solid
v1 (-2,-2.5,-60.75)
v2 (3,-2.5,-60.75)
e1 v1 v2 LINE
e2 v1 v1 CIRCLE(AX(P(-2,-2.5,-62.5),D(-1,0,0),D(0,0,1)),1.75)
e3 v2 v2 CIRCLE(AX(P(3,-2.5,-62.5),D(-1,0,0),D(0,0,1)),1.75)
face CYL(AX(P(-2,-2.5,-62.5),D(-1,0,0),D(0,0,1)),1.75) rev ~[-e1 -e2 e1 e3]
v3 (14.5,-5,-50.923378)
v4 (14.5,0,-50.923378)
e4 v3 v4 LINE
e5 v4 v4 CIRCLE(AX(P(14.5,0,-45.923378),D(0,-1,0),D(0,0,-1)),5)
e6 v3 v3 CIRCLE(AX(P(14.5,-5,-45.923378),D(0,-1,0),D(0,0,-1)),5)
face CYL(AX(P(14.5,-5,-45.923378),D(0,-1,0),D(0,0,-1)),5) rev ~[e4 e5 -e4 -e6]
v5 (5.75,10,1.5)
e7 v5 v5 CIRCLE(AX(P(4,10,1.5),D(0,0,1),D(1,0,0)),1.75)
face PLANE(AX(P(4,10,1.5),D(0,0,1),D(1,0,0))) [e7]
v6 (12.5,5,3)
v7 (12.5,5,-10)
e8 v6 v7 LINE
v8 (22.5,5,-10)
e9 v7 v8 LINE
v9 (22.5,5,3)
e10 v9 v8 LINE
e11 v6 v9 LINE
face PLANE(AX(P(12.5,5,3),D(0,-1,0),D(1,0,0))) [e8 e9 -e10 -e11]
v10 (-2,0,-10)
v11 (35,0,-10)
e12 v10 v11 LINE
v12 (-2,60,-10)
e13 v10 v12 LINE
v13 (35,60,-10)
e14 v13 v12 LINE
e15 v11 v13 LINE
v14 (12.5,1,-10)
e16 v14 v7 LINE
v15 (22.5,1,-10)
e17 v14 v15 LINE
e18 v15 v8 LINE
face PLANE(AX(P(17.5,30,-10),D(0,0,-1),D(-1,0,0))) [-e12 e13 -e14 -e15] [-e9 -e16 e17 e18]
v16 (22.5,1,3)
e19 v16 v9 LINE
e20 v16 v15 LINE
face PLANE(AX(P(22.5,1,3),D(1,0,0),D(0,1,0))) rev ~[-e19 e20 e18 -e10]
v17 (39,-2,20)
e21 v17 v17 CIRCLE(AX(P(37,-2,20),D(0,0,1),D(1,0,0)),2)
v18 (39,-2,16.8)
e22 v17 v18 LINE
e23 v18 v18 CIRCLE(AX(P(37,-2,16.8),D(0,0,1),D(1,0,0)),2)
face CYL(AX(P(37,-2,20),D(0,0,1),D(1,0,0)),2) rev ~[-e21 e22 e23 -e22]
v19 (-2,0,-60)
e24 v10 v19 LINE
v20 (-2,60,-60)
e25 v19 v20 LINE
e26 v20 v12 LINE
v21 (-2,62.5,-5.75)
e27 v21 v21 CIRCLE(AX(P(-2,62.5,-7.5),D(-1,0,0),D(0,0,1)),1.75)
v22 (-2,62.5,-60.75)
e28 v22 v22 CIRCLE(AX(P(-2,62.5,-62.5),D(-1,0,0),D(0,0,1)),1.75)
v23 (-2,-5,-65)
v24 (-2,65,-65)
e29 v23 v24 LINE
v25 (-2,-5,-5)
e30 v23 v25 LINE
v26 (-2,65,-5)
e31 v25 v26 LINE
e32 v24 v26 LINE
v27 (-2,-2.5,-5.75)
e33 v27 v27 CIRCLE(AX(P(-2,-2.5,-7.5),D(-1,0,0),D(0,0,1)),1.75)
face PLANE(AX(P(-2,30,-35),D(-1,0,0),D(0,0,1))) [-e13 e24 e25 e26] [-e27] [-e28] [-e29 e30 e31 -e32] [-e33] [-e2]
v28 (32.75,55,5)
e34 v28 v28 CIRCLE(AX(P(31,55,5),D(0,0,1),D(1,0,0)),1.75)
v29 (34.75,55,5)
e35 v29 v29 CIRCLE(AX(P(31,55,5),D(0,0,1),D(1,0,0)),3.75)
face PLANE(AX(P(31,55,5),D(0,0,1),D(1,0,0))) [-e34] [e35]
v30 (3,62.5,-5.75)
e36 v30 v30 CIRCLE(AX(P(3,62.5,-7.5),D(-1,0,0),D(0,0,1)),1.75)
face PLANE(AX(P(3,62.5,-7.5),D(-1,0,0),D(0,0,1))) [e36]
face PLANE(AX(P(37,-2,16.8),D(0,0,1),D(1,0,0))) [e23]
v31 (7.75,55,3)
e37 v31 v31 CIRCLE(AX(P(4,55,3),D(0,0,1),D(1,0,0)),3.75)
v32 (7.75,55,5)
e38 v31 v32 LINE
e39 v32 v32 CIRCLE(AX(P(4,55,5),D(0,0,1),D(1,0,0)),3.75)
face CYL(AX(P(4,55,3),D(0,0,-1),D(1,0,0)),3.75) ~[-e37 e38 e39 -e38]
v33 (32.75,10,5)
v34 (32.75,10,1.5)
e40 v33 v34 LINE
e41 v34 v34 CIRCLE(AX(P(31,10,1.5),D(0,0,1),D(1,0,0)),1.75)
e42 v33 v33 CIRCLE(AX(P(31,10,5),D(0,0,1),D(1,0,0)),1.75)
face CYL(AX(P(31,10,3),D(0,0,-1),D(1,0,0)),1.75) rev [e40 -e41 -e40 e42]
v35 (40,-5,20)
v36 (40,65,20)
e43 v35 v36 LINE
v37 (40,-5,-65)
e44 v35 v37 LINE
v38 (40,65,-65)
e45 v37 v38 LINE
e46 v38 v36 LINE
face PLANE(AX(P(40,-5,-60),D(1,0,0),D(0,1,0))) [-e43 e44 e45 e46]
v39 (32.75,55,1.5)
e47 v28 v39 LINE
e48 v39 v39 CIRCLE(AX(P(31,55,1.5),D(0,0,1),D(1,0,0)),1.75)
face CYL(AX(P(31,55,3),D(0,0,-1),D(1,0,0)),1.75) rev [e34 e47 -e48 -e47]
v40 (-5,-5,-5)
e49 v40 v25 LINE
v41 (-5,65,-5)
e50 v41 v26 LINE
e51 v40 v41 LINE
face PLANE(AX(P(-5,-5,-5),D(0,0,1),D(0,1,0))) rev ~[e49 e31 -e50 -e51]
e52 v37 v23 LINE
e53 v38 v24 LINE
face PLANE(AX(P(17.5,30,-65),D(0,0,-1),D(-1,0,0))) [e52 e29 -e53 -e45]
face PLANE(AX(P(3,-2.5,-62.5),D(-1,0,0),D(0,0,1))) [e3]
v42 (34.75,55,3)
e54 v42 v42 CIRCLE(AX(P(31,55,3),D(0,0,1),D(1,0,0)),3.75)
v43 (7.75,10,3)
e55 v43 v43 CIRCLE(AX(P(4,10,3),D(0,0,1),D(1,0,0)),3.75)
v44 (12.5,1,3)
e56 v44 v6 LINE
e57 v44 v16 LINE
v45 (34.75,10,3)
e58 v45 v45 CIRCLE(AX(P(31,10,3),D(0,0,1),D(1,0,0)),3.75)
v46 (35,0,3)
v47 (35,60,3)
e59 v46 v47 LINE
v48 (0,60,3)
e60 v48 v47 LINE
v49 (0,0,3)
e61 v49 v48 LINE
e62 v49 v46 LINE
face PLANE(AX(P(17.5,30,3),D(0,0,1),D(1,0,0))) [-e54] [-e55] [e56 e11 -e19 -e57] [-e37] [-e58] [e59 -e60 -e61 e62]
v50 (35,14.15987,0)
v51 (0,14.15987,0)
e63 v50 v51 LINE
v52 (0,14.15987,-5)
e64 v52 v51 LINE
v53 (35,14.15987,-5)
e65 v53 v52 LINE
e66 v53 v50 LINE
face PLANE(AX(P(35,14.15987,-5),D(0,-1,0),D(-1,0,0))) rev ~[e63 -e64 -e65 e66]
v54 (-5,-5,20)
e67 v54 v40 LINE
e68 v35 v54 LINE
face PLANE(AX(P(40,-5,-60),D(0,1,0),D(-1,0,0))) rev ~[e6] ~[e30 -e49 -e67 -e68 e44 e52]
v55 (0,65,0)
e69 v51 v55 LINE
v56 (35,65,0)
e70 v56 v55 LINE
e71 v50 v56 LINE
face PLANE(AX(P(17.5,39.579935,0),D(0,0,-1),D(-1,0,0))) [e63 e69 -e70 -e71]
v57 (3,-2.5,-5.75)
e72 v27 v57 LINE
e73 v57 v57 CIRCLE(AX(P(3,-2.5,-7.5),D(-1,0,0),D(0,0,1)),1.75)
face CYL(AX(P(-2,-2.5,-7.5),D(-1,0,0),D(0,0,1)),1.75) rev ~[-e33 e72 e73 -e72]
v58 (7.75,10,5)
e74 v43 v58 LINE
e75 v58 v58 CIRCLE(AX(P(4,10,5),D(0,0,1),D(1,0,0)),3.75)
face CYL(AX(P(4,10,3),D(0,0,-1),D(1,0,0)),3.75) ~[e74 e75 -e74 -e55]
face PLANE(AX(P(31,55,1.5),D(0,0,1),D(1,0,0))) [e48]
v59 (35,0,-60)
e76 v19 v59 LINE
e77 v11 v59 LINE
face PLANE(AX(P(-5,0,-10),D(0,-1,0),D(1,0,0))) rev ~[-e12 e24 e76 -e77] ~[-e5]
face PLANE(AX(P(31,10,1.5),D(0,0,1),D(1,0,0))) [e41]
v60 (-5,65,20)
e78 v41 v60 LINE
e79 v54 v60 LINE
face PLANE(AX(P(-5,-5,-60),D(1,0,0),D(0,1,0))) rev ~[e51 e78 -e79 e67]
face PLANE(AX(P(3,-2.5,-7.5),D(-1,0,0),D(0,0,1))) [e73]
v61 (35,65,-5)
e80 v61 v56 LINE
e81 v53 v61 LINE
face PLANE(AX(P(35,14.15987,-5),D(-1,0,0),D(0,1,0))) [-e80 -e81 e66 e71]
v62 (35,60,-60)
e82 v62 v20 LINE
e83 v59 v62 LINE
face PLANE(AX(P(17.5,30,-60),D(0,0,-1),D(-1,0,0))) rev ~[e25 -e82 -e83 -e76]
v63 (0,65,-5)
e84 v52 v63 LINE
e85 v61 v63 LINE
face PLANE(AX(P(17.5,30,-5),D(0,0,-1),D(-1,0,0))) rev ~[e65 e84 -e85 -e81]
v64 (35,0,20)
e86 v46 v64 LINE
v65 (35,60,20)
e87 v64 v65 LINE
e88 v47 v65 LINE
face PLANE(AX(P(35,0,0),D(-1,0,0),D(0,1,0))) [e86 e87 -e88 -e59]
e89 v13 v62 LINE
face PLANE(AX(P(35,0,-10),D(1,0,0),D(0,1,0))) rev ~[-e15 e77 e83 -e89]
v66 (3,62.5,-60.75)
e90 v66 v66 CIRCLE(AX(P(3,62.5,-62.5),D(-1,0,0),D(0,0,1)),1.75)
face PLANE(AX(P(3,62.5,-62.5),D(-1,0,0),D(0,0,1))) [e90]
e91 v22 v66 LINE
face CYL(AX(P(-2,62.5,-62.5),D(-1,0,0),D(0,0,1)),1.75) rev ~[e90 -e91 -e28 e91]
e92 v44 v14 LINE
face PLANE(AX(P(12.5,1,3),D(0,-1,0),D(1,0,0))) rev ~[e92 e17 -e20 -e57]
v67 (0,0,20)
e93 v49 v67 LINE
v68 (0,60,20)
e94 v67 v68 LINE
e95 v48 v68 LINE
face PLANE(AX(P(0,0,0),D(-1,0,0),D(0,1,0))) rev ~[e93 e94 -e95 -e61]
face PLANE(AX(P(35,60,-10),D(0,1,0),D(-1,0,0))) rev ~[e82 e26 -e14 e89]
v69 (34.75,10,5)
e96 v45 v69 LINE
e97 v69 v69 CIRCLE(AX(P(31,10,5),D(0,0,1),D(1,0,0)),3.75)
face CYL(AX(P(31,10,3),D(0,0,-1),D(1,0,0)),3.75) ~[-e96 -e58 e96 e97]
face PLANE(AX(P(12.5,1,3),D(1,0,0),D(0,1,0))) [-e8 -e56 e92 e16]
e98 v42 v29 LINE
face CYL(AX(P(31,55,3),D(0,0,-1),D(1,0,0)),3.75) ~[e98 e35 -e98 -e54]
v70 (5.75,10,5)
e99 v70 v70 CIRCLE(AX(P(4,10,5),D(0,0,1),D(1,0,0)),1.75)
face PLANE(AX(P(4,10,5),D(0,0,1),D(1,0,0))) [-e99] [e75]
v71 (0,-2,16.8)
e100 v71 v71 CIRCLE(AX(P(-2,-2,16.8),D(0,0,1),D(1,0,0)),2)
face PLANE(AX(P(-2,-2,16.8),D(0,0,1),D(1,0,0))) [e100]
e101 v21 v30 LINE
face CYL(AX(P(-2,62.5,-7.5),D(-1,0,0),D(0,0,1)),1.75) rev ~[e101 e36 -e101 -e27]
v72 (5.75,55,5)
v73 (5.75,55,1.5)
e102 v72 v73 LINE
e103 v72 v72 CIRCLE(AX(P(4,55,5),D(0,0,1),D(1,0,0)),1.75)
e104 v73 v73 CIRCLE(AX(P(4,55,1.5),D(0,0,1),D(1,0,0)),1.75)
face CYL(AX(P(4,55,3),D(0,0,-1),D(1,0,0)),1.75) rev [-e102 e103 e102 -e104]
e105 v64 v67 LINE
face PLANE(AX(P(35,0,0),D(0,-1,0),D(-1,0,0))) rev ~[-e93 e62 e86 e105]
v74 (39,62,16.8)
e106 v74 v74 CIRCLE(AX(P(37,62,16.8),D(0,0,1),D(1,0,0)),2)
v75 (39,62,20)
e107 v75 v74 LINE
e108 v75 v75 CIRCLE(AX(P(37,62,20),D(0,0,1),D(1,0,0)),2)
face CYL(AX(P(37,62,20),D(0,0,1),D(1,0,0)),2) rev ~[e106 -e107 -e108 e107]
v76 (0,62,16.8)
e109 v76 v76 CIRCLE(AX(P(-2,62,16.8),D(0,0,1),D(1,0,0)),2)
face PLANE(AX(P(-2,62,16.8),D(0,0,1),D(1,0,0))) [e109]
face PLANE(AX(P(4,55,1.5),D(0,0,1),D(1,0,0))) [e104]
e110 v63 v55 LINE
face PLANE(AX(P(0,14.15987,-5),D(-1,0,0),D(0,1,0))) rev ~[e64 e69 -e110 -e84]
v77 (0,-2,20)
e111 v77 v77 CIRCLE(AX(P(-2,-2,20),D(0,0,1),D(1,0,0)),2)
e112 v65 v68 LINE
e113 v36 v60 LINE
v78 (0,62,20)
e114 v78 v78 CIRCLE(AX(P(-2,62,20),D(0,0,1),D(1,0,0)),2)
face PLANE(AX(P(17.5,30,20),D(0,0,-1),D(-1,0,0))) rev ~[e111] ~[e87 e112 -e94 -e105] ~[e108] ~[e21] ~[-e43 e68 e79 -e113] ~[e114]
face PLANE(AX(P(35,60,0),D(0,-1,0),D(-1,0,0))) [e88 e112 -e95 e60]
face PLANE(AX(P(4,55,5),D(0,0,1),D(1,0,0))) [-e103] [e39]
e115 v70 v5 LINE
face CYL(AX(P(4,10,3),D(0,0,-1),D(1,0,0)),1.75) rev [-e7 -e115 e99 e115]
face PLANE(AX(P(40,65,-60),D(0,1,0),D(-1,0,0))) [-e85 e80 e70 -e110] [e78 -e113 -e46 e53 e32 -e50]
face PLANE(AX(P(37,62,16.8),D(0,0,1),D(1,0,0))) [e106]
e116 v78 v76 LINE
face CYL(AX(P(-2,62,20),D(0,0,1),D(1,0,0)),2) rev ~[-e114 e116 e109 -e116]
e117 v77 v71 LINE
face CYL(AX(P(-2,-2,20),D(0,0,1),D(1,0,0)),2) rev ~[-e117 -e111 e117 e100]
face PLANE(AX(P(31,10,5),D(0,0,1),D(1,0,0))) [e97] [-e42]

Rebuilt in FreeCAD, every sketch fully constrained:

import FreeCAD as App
import Part
import Sketcher

V = App.Vector

doc = App.newDocument("Part")
params = doc.addObject("Spreadsheet::Sheet", "Params")
for row, (alias, value) in enumerate([
    ("sketch1_width", "35 mm"),
    ("sketch1_height", "60 mm"),
    ("pad1_length", "3 mm"),
    ("sketch2_width", "45 mm"),
    ("sketch2_width2", "35 mm"),
    ("sketch2_height", "70 mm"),
    ("sketch2_height2", "60 mm"),
    ("pad2_length", "20 mm"),
    ("sketch3_diameter", "7.5 mm"),
    ("sketch3_diameter2", "3.5 mm"),
    ("pad3_length", "2 mm"),
    ("sketch4_diameter", "3.5 mm"),
    ("pocket1_length", "1.5 mm"),
    ("sketch5_width", "45 mm"),
    ("sketch5_height", "70 mm"),
    ("pad4_length", "5 mm"),
    ("sketch6_width", "35 mm"),
    ("pocket2_length", "5 mm"),
    ("sketch7_width", "45 mm"),
    ("sketch7_height", "70 mm"),
    ("pad5_length", "5 mm"),
    ("sketch8_width", "40 mm"),
    ("sketch8_width2", "45 mm"),
    ("sketch8_height", "5 mm"),
    ("sketch8_height2", "60 mm"),
    ("pad6_length", "50 mm"),
    ("sketch9_width", "45 mm"),
    ("sketch9_height", "70 mm"),
    ("pad7_length", "5 mm"),
    ("sketch10_diameter", "4 mm"),
    ("pocket3_length", "3.2 mm"),
    ("sketch11_width", "10 mm"),
    ("sketch11_height", "4 mm"),
    ("sketch12_width", "70 mm"),
    ("sketch12_height", "60 mm"),
    ("pocket5_length", "3 mm"),
    ("sketch13_diameter", "3.5 mm"),
    ("pocket6_length", "5 mm"),
    ("sketch14_diameter", "10 mm"),
    ("pocket7_length", "5 mm"),
], start=1):
    params.set(f"A{row}", alias)
    params.set(f"B{row}", "=" + value)
    params.setAlias(f"B{row}", alias)

body = doc.addObject("PartDesign::Body", "Body")

# Sketch on XY plane
sketch1 = body.newObject("Sketcher::SketchObject", "Sketch")
sketch1.AttachmentSupport = (doc.getObject("XY_Plane"), [""])
sketch1.MapMode = "FlatFace"
sketch1.addGeometry(Part.LineSegment(V(0, 60, 0), V(0, 0, 0)), False)
sketch1.addGeometry(Part.LineSegment(V(0, 0, 0), V(35, 0, 0)), False)
sketch1.addGeometry(Part.LineSegment(V(35, 0, 0), V(35, 60, 0)), False)
sketch1.addGeometry(Part.LineSegment(V(35, 60, 0), V(0, 60, 0)), False)
sketch1.addConstraint(Sketcher.Constraint("Coincident", 0, 2, 1, 1))
sketch1.addConstraint(Sketcher.Constraint("Coincident", 1, 2, 2, 1))
sketch1.addConstraint(Sketcher.Constraint("Coincident", 2, 2, 3, 1))
sketch1.addConstraint(Sketcher.Constraint("Coincident", 3, 2, 0, 1))
sketch1.addConstraint(Sketcher.Constraint("Vertical", 0))
sketch1.addConstraint(Sketcher.Constraint("Horizontal", 1))
sketch1.addConstraint(Sketcher.Constraint("Vertical", 2))
sketch1.addConstraint(Sketcher.Constraint("Horizontal", 3))
sketch1.addConstraint(Sketcher.Constraint("Coincident", 0, 2, -1, 1))
sketch1.addConstraint(Sketcher.Constraint("DistanceX", 1, 1, 1, 2, 35.0))
sketch1.addConstraint(Sketcher.Constraint("DistanceY", 0, 2, 0, 1, 60.0))
sketch1.setExpression("Constraints[9]", "Params.sketch1_width")
sketch1.setExpression("Constraints[10]", "Params.sketch1_height")
pad1 = body.newObject("PartDesign::Pad", "Pad")
pad1.Profile = sketch1
pad1.setExpression("Length", "Params.pad1_length")

# Sketch on XY plane
sketch2 = body.newObject("Sketcher::SketchObject", "Sketch001")
sketch2.AttachmentSupport = (doc.getObject("XY_Plane"), [""])
sketch2.MapMode = "FlatFace"
sketch2.addGeometry(Part.LineSegment(V(40, 65, 0), V(40, -5, 0)), False)
sketch2.addGeometry(Part.LineSegment(V(40, -5, 0), V(-5, -5, 0)), False)
sketch2.addGeometry(Part.LineSegment(V(-5, -5, 0), V(-5, 65, 0)), False)
sketch2.addGeometry(Part.LineSegment(V(-5, 65, 0), V(40, 65, 0)), False)
sketch2.addGeometry(Part.LineSegment(V(0, 0, 0), V(35, 0, 0)), False)
sketch2.addGeometry(Part.LineSegment(V(35, 0, 0), V(35, 60, 0)), False)
sketch2.addGeometry(Part.LineSegment(V(35, 60, 0), V(0, 60, 0)), False)
sketch2.addGeometry(Part.LineSegment(V(0, 60, 0), V(0, 0, 0)), False)
sketch2.addConstraint(Sketcher.Constraint("Coincident", 0, 2, 1, 1))
sketch2.addConstraint(Sketcher.Constraint("Coincident", 1, 2, 2, 1))
sketch2.addConstraint(Sketcher.Constraint("Coincident", 2, 2, 3, 1))
sketch2.addConstraint(Sketcher.Constraint("Coincident", 3, 2, 0, 1))
sketch2.addConstraint(Sketcher.Constraint("Coincident", 4, 2, 5, 1))
sketch2.addConstraint(Sketcher.Constraint("Coincident", 5, 2, 6, 1))
sketch2.addConstraint(Sketcher.Constraint("Coincident", 6, 2, 7, 1))
sketch2.addConstraint(Sketcher.Constraint("Coincident", 7, 2, 4, 1))
sketch2.addConstraint(Sketcher.Constraint("Vertical", 0))
sketch2.addConstraint(Sketcher.Constraint("Horizontal", 1))
sketch2.addConstraint(Sketcher.Constraint("Vertical", 2))
sketch2.addConstraint(Sketcher.Constraint("Horizontal", 3))
sketch2.addConstraint(Sketcher.Constraint("Horizontal", 4))
sketch2.addConstraint(Sketcher.Constraint("Vertical", 5))
sketch2.addConstraint(Sketcher.Constraint("Horizontal", 6))
sketch2.addConstraint(Sketcher.Constraint("Vertical", 7))
sketch2.addConstraint(Sketcher.Constraint("Coincident", 7, 2, -1, 1))
sketch2.addConstraint(Sketcher.Constraint("DistanceX", 1, 2, 1, 1, 45.0))
sketch2.addConstraint(Sketcher.Constraint("DistanceX", 4, 1, 4, 2, 35.0))
sketch2.addConstraint(Sketcher.Constraint("DistanceY", 0, 2, 0, 1, 70.0))
sketch2.addConstraint(Sketcher.Constraint("DistanceY", 5, 1, 5, 2, 60.0))
sketch2.addConstraint(Sketcher.Constraint("DistanceX", -1, 1, 0, 2, 40.0))
sketch2.addConstraint(Sketcher.Constraint("DistanceY", 0, 2, -1, 1, 5.0))
sketch2.setExpression("Constraints[17]", "Params.sketch2_width")
sketch2.setExpression("Constraints[18]", "Params.sketch2_width2")
sketch2.setExpression("Constraints[19]", "Params.sketch2_height")
sketch2.setExpression("Constraints[20]", "Params.sketch2_height2")
pad2 = body.newObject("PartDesign::Pad", "Pad001")
pad2.Profile = sketch2
pad2.setExpression("Length", "Params.pad2_length")

# Sketch on XY plane
sketch3 = body.newObject("Sketcher::SketchObject", "Sketch002")
sketch3.AttachmentSupport = (doc.getObject("XY_Plane"), [""])
sketch3.MapMode = "FlatFace"
sketch3.AttachmentOffset = App.Placement(V(0, 0, 3), App.Rotation())
sketch3.addGeometry(Part.Circle(V(4, 55, 0), V(0, 0, 1), 3.75), False)
sketch3.addGeometry(Part.Circle(V(4, 55, 0), V(0, 0, 1), 1.75), False)
sketch3.addGeometry(Part.Circle(V(31, 55, 0), V(0, 0, 1), 3.75), False)
sketch3.addGeometry(Part.Circle(V(31, 55, 0), V(0, 0, 1), 1.75), False)
sketch3.addGeometry(Part.Circle(V(31, 10, 0), V(0, 0, 1), 3.75), False)
sketch3.addGeometry(Part.Circle(V(31, 10, 0), V(0, 0, 1), 1.75), False)
sketch3.addGeometry(Part.Circle(V(4, 10, 0), V(0, 0, 1), 3.75), False)
sketch3.addGeometry(Part.Circle(V(4, 10, 0), V(0, 0, 1), 1.75), False)
sketch3.addConstraint(Sketcher.Constraint("Coincident", 1, 3, 0, 3))
sketch3.addConstraint(Sketcher.Constraint("Coincident", 3, 3, 2, 3))
sketch3.addConstraint(Sketcher.Constraint("Coincident", 5, 3, 4, 3))
sketch3.addConstraint(Sketcher.Constraint("Coincident", 7, 3, 6, 3))
sketch3.addConstraint(Sketcher.Constraint("Equal", 0, 2))
sketch3.addConstraint(Sketcher.Constraint("Equal", 1, 3))
sketch3.addConstraint(Sketcher.Constraint("Equal", 2, 4))
sketch3.addConstraint(Sketcher.Constraint("Equal", 3, 5))
sketch3.addConstraint(Sketcher.Constraint("Equal", 4, 6))
sketch3.addConstraint(Sketcher.Constraint("Equal", 5, 7))
sketch3.addConstraint(Sketcher.Constraint("Horizontal", 1, 3, 2, 3))
sketch3.addConstraint(Sketcher.Constraint("Horizontal", 5, 3, 6, 3))
sketch3.addConstraint(Sketcher.Constraint("Vertical", 3, 3, 4, 3))
sketch3.addConstraint(Sketcher.Constraint("Vertical", 1, 3, 6, 3))
sketch3.addConstraint(Sketcher.Constraint("Diameter", 0, 7.5))
sketch3.addConstraint(Sketcher.Constraint("Diameter", 1, 3.5))
sketch3.addConstraint(Sketcher.Constraint("DistanceX", -1, 1, 0, 3, 4.0))
sketch3.addConstraint(Sketcher.Constraint("DistanceY", -1, 1, 0, 3, 55.0))
sketch3.addConstraint(Sketcher.Constraint("DistanceX", -1, 1, 2, 3, 31.0))
sketch3.addConstraint(Sketcher.Constraint("DistanceY", -1, 1, 4, 3, 10.0))
sketch3.setExpression("Constraints[14]", "Params.sketch3_diameter")
sketch3.setExpression("Constraints[15]", "Params.sketch3_diameter2")
pad3 = body.newObject("PartDesign::Pad", "Pad002")
pad3.Profile = sketch3
pad3.setExpression("Length", "Params.pad3_length")

# Sketch on XY plane
sketch4 = body.newObject("Sketcher::SketchObject", "Sketch003")
sketch4.AttachmentSupport = (doc.getObject("XY_Plane"), [""])
sketch4.MapMode = "FlatFace"
sketch4.AttachmentOffset = App.Placement(V(0, 0, 1.5), App.Rotation())
sketch4.addGeometry(Part.Circle(V(4, 55, 0), V(0, 0, 1), 1.75), False)
sketch4.addGeometry(Part.Circle(V(31, 55, 0), V(0, 0, 1), 1.75), False)
sketch4.addGeometry(Part.Circle(V(31, 10, 0), V(0, 0, 1), 1.75), False)
sketch4.addGeometry(Part.Circle(V(4, 10, 0), V(0, 0, 1), 1.75), False)
sketch4.addConstraint(Sketcher.Constraint("Equal", 0, 1))
sketch4.addConstraint(Sketcher.Constraint("Equal", 1, 2))
sketch4.addConstraint(Sketcher.Constraint("Equal", 2, 3))
sketch4.addConstraint(Sketcher.Constraint("Horizontal", 0, 3, 1, 3))
sketch4.addConstraint(Sketcher.Constraint("Horizontal", 2, 3, 3, 3))
sketch4.addConstraint(Sketcher.Constraint("Vertical", 1, 3, 2, 3))
sketch4.addConstraint(Sketcher.Constraint("Vertical", 0, 3, 3, 3))
sketch4.addConstraint(Sketcher.Constraint("Diameter", 0, 3.5))
sketch4.addConstraint(Sketcher.Constraint("DistanceX", -1, 1, 0, 3, 4.0))
sketch4.addConstraint(Sketcher.Constraint("DistanceY", -1, 1, 0, 3, 55.0))
sketch4.addConstraint(Sketcher.Constraint("DistanceX", -1, 1, 1, 3, 31.0))
sketch4.addConstraint(Sketcher.Constraint("DistanceY", -1, 1, 2, 3, 10.0))
sketch4.setExpression("Constraints[7]", "Params.sketch4_diameter")
pocket1 = body.newObject("PartDesign::Pocket", "Pocket")
pocket1.Profile = sketch4
pocket1.setExpression("Length", "Params.pocket1_length")
pocket1.Reversed = True

# Sketch on XY plane
sketch5 = body.newObject("Sketcher::SketchObject", "Sketch004")
sketch5.AttachmentSupport = (doc.getObject("XY_Plane"), [""])
sketch5.MapMode = "FlatFace"
sketch5.addGeometry(Part.LineSegment(V(40, 65, 0), V(40, -5, 0)), False)
sketch5.addGeometry(Part.LineSegment(V(40, -5, 0), V(-5, -5, 0)), False)
sketch5.addGeometry(Part.LineSegment(V(-5, -5, 0), V(-5, 65, 0)), False)
sketch5.addGeometry(Part.LineSegment(V(-5, 65, 0), V(40, 65, 0)), False)
sketch5.addConstraint(Sketcher.Constraint("Coincident", 0, 2, 1, 1))
sketch5.addConstraint(Sketcher.Constraint("Coincident", 1, 2, 2, 1))
sketch5.addConstraint(Sketcher.Constraint("Coincident", 2, 2, 3, 1))
sketch5.addConstraint(Sketcher.Constraint("Coincident", 3, 2, 0, 1))
sketch5.addConstraint(Sketcher.Constraint("Vertical", 0))
sketch5.addConstraint(Sketcher.Constraint("Horizontal", 1))
sketch5.addConstraint(Sketcher.Constraint("Vertical", 2))
sketch5.addConstraint(Sketcher.Constraint("Horizontal", 3))
sketch5.addConstraint(Sketcher.Constraint("DistanceX", 1, 2, 1, 1, 45.0))
sketch5.addConstraint(Sketcher.Constraint("DistanceY", 0, 2, 0, 1, 70.0))
sketch5.addConstraint(Sketcher.Constraint("DistanceX", -1, 1, 0, 2, 40.0))
sketch5.addConstraint(Sketcher.Constraint("DistanceY", 0, 2, -1, 1, 5.0))
sketch5.setExpression("Constraints[8]", "Params.sketch5_width")
sketch5.setExpression("Constraints[9]", "Params.sketch5_height")
pad4 = body.newObject("PartDesign::Pad", "Pad003")
pad4.Profile = sketch5
pad4.setExpression("Length", "Params.pad4_length")
pad4.Reversed = True

# Sketch on XY plane
sketch6 = body.newObject("Sketcher::SketchObject", "Sketch005")
sketch6.AttachmentSupport = (doc.getObject("XY_Plane"), [""])
sketch6.MapMode = "FlatFace"
sketch6.AttachmentOffset = App.Placement(V(0, 0, -5), App.Rotation())
sketch6.addGeometry(Part.LineSegment(V(35, 65, 0), V(35, 14.15987, 0)), False)
sketch6.addGeometry(Part.LineSegment(V(35, 14.15987, 0), V(0, 14.15987, 0)), False)
sketch6.addGeometry(Part.LineSegment(V(0, 14.15987, 0), V(0, 65, 0)), False)
sketch6.addGeometry(Part.LineSegment(V(0, 65, 0), V(35, 65, 0)), False)
sketch6.addConstraint(Sketcher.Constraint("Coincident", 0, 2, 1, 1))
sketch6.addConstraint(Sketcher.Constraint("Coincident", 1, 2, 2, 1))
sketch6.addConstraint(Sketcher.Constraint("Coincident", 2, 2, 3, 1))
sketch6.addConstraint(Sketcher.Constraint("Coincident", 3, 2, 0, 1))
sketch6.addConstraint(Sketcher.Constraint("Vertical", 0))
sketch6.addConstraint(Sketcher.Constraint("Horizontal", 1))
sketch6.addConstraint(Sketcher.Constraint("Vertical", 2))
sketch6.addConstraint(Sketcher.Constraint("Horizontal", 3))
sketch6.addConstraint(Sketcher.Constraint("PointOnObject", 1, 2, -2))
sketch6.addConstraint(Sketcher.Constraint("DistanceX", 1, 2, 1, 1, 35.0))
sketch6.addConstraint(Sketcher.Constraint("DistanceY", -1, 1, 2, 2, 65.0))
sketch6.addConstraint(Sketcher.Constraint("DistanceY", 0, 2, 0, 1, 50.84013))
sketch6.setExpression("Constraints[9]", "Params.sketch6_width")
pocket2 = body.newObject("PartDesign::Pocket", "Pocket001")
pocket2.Profile = sketch6
pocket2.setExpression("Length", "Params.pocket2_length")
pocket2.Reversed = True

# Sketch on XY plane
sketch7 = body.newObject("Sketcher::SketchObject", "Sketch006")
sketch7.AttachmentSupport = (doc.getObject("XY_Plane"), [""])
sketch7.MapMode = "FlatFace"
sketch7.AttachmentOffset = App.Placement(V(0, 0, -5), App.Rotation())
sketch7.addGeometry(Part.LineSegment(V(40, 65, 0), V(40, -5, 0)), False)
sketch7.addGeometry(Part.LineSegment(V(40, -5, 0), V(-5, -5, 0)), False)
sketch7.addGeometry(Part.LineSegment(V(-5, -5, 0), V(-5, 65, 0)), False)
sketch7.addGeometry(Part.LineSegment(V(-5, 65, 0), V(40, 65, 0)), False)
sketch7.addConstraint(Sketcher.Constraint("Coincident", 0, 2, 1, 1))
sketch7.addConstraint(Sketcher.Constraint("Coincident", 1, 2, 2, 1))
sketch7.addConstraint(Sketcher.Constraint("Coincident", 2, 2, 3, 1))
sketch7.addConstraint(Sketcher.Constraint("Coincident", 3, 2, 0, 1))
sketch7.addConstraint(Sketcher.Constraint("Vertical", 0))
sketch7.addConstraint(Sketcher.Constraint("Horizontal", 1))
sketch7.addConstraint(Sketcher.Constraint("Vertical", 2))
sketch7.addConstraint(Sketcher.Constraint("Horizontal", 3))
sketch7.addConstraint(Sketcher.Constraint("DistanceX", 1, 2, 1, 1, 45.0))
sketch7.addConstraint(Sketcher.Constraint("DistanceY", 0, 2, 0, 1, 70.0))
sketch7.addConstraint(Sketcher.Constraint("DistanceX", -1, 1, 0, 2, 40.0))
sketch7.addConstraint(Sketcher.Constraint("DistanceY", 0, 2, -1, 1, 5.0))
sketch7.setExpression("Constraints[8]", "Params.sketch7_width")
sketch7.setExpression("Constraints[9]", "Params.sketch7_height")
pad5 = body.newObject("PartDesign::Pad", "Pad004")
pad5.Profile = sketch7
pad5.setExpression("Length", "Params.pad5_length")
pad5.Reversed = True

# Sketch on XY plane
sketch8 = body.newObject("Sketcher::SketchObject", "Sketch007")
sketch8.AttachmentSupport = (doc.getObject("XY_Plane"), [""])
sketch8.MapMode = "FlatFace"
sketch8.AttachmentOffset = App.Placement(V(0, 0, -10), App.Rotation())
sketch8.addGeometry(Part.LineSegment(V(-5, -5, 0), V(-5, 0, 0)), False)
sketch8.addGeometry(Part.LineSegment(V(-5, 0, 0), V(35, 0, 0)), False)
sketch8.addGeometry(Part.LineSegment(V(35, 0, 0), V(35, 60, 0)), False)
sketch8.addGeometry(Part.LineSegment(V(35, 60, 0), V(-5, 60, 0)), False)
sketch8.addGeometry(Part.LineSegment(V(-5, 60, 0), V(-5, 65, 0)), False)
sketch8.addGeometry(Part.LineSegment(V(-5, 65, 0), V(40, 65, 0)), False)
sketch8.addGeometry(Part.LineSegment(V(40, 65, 0), V(40, -5, 0)), False)
sketch8.addGeometry(Part.LineSegment(V(40, -5, 0), V(-5, -5, 0)), False)
sketch8.addConstraint(Sketcher.Constraint("Coincident", 0, 2, 1, 1))
sketch8.addConstraint(Sketcher.Constraint("Coincident", 1, 2, 2, 1))
sketch8.addConstraint(Sketcher.Constraint("Coincident", 2, 2, 3, 1))
sketch8.addConstraint(Sketcher.Constraint("Coincident", 3, 2, 4, 1))
sketch8.addConstraint(Sketcher.Constraint("Coincident", 4, 2, 5, 1))
sketch8.addConstraint(Sketcher.Constraint("Coincident", 5, 2, 6, 1))
sketch8.addConstraint(Sketcher.Constraint("Coincident", 6, 2, 7, 1))
sketch8.addConstraint(Sketcher.Constraint("Coincident", 7, 2, 0, 1))
sketch8.addConstraint(Sketcher.Constraint("Vertical", 0))
sketch8.addConstraint(Sketcher.Constraint("Horizontal", 1))
sketch8.addConstraint(Sketcher.Constraint("Vertical", 2))
sketch8.addConstraint(Sketcher.Constraint("Horizontal", 3))
sketch8.addConstraint(Sketcher.Constraint("Vertical", 4))
sketch8.addConstraint(Sketcher.Constraint("Horizontal", 5))
sketch8.addConstraint(Sketcher.Constraint("Vertical", 6))
sketch8.addConstraint(Sketcher.Constraint("Horizontal", 7))
sketch8.addConstraint(Sketcher.Constraint("PointOnObject", 0, 2, -1))
sketch8.addConstraint(Sketcher.Constraint("Vertical", 0, 2, 3, 2))
sketch8.addConstraint(Sketcher.Constraint("Equal", 0, 4))
sketch8.addConstraint(Sketcher.Constraint("DistanceX", 1, 1, 1, 2, 40.0))
sketch8.addConstraint(Sketcher.Constraint("DistanceX", 5, 1, 5, 2, 45.0))
sketch8.addConstraint(Sketcher.Constraint("DistanceY", 0, 1, 0, 2, 5.0))
sketch8.addConstraint(Sketcher.Constraint("DistanceY", 2, 1, 2, 2, 60.0))
sketch8.addConstraint(Sketcher.Constraint("DistanceX", 0, 2, -1, 1, 5.0))
sketch8.setExpression("Constraints[19]", "Params.sketch8_width")
sketch8.setExpression("Constraints[20]", "Params.sketch8_width2")
sketch8.setExpression("Constraints[21]", "Params.sketch8_height")
sketch8.setExpression("Constraints[22]", "Params.sketch8_height2")
pad6 = body.newObject("PartDesign::Pad", "Pad005")
pad6.Profile = sketch8
pad6.setExpression("Length", "Params.pad6_length")
pad6.Reversed = True

# Sketch on XY plane
sketch9 = body.newObject("Sketcher::SketchObject", "Sketch008")
sketch9.AttachmentSupport = (doc.getObject("XY_Plane"), [""])
sketch9.MapMode = "FlatFace"
sketch9.AttachmentOffset = App.Placement(V(0, 0, -60), App.Rotation())
sketch9.addGeometry(Part.LineSegment(V(40, 65, 0), V(40, -5, 0)), False)
sketch9.addGeometry(Part.LineSegment(V(40, -5, 0), V(-5, -5, 0)), False)
sketch9.addGeometry(Part.LineSegment(V(-5, -5, 0), V(-5, 65, 0)), False)
sketch9.addGeometry(Part.LineSegment(V(-5, 65, 0), V(40, 65, 0)), False)
sketch9.addConstraint(Sketcher.Constraint("Coincident", 0, 2, 1, 1))
sketch9.addConstraint(Sketcher.Constraint("Coincident", 1, 2, 2, 1))
sketch9.addConstraint(Sketcher.Constraint("Coincident", 2, 2, 3, 1))
sketch9.addConstraint(Sketcher.Constraint("Coincident", 3, 2, 0, 1))
sketch9.addConstraint(Sketcher.Constraint("Vertical", 0))
sketch9.addConstraint(Sketcher.Constraint("Horizontal", 1))
sketch9.addConstraint(Sketcher.Constraint("Vertical", 2))
sketch9.addConstraint(Sketcher.Constraint("Horizontal", 3))
sketch9.addConstraint(Sketcher.Constraint("DistanceX", 1, 2, 1, 1, 45.0))
sketch9.addConstraint(Sketcher.Constraint("DistanceY", 0, 2, 0, 1, 70.0))
sketch9.addConstraint(Sketcher.Constraint("DistanceX", -1, 1, 0, 2, 40.0))
sketch9.addConstraint(Sketcher.Constraint("DistanceY", 0, 2, -1, 1, 5.0))
sketch9.setExpression("Constraints[8]", "Params.sketch9_width")
sketch9.setExpression("Constraints[9]", "Params.sketch9_height")
pad7 = body.newObject("PartDesign::Pad", "Pad006")
pad7.Profile = sketch9
pad7.setExpression("Length", "Params.pad7_length")
pad7.Reversed = True

# Sketch on XY plane
sketch10 = body.newObject("Sketcher::SketchObject", "Sketch009")
sketch10.AttachmentSupport = (doc.getObject("XY_Plane"), [""])
sketch10.MapMode = "FlatFace"
sketch10.AttachmentOffset = App.Placement(V(0, 0, 20), App.Rotation())
sketch10.addGeometry(Part.Circle(V(37, 62, 0), V(0, 0, 1), 2), False)
sketch10.addGeometry(Part.Circle(V(-2, 62, 0), V(0, 0, 1), 2), False)
sketch10.addGeometry(Part.Circle(V(-2, -2, 0), V(0, 0, 1), 2), False)
sketch10.addGeometry(Part.Circle(V(37, -2, 0), V(0, 0, 1), 2), False)
sketch10.addConstraint(Sketcher.Constraint("Equal", 0, 1))
sketch10.addConstraint(Sketcher.Constraint("Equal", 1, 2))
sketch10.addConstraint(Sketcher.Constraint("Equal", 2, 3))
sketch10.addConstraint(Sketcher.Constraint("Horizontal", 0, 3, 1, 3))
sketch10.addConstraint(Sketcher.Constraint("Horizontal", 2, 3, 3, 3))
sketch10.addConstraint(Sketcher.Constraint("Vertical", 1, 3, 2, 3))
sketch10.addConstraint(Sketcher.Constraint("Vertical", 0, 3, 3, 3))
sketch10.addConstraint(Sketcher.Constraint("Diameter", 0, 4.0))
sketch10.addConstraint(Sketcher.Constraint("DistanceX", -1, 1, 0, 3, 37.0))
sketch10.addConstraint(Sketcher.Constraint("DistanceY", -1, 1, 0, 3, 62.0))
sketch10.addConstraint(Sketcher.Constraint("DistanceX", 1, 3, -1, 1, 2.0))
sketch10.addConstraint(Sketcher.Constraint("DistanceY", 2, 3, -1, 1, 2.0))
sketch10.setExpression("Constraints[7]", "Params.sketch10_diameter")
pocket3 = body.newObject("PartDesign::Pocket", "Pocket002")
pocket3.Profile = sketch10
pocket3.setExpression("Length", "Params.pocket3_length")

# Sketch on XY plane
sketch11 = body.newObject("Sketcher::SketchObject", "Sketch010")
sketch11.AttachmentSupport = (doc.getObject("XY_Plane"), [""])
sketch11.MapMode = "FlatFace"
sketch11.AttachmentOffset = App.Placement(V(0, 0, 3), App.Rotation())
sketch11.addGeometry(Part.LineSegment(V(12.5, 5, 0), V(12.5, 1, 0)), False)
sketch11.addGeometry(Part.LineSegment(V(12.5, 1, 0), V(22.5, 1, 0)), False)
sketch11.addGeometry(Part.LineSegment(V(22.5, 1, 0), V(22.5, 5, 0)), False)
sketch11.addGeometry(Part.LineSegment(V(22.5, 5, 0), V(12.5, 5, 0)), False)
sketch11.addConstraint(Sketcher.Constraint("Coincident", 0, 2, 1, 1))
sketch11.addConstraint(Sketcher.Constraint("Coincident", 1, 2, 2, 1))
sketch11.addConstraint(Sketcher.Constraint("Coincident", 2, 2, 3, 1))
sketch11.addConstraint(Sketcher.Constraint("Coincident", 3, 2, 0, 1))
sketch11.addConstraint(Sketcher.Constraint("Vertical", 0))
sketch11.addConstraint(Sketcher.Constraint("Horizontal", 1))
sketch11.addConstraint(Sketcher.Constraint("Vertical", 2))
sketch11.addConstraint(Sketcher.Constraint("Horizontal", 3))
sketch11.addConstraint(Sketcher.Constraint("DistanceX", 1, 1, 1, 2, 10.0))
sketch11.addConstraint(Sketcher.Constraint("DistanceY", 0, 2, 0, 1, 4.0))
sketch11.addConstraint(Sketcher.Constraint("DistanceY", -1, 1, 0, 2, 1.0))
sketch11.addConstraint(Sketcher.Constraint("DistanceX", -1, 1, 0, 2, 12.5))
sketch11.setExpression("Constraints[8]", "Params.sketch11_width")
sketch11.setExpression("Constraints[9]", "Params.sketch11_height")
pocket4 = body.newObject("PartDesign::Pocket", "Pocket003")
pocket4.Profile = sketch11
pocket4.Type = "UpToFirst"

# Sketch on YZ plane
sketch12 = body.newObject("Sketcher::SketchObject", "Sketch011")
sketch12.AttachmentSupport = (doc.getObject("YZ_Plane"), [""])
sketch12.MapMode = "FlatFace"
sketch12.AttachmentOffset = App.Placement(V(0, 0, -5), App.Rotation())
sketch12.addGeometry(Part.LineSegment(V(65, -65, 0), V(-5, -65, 0)), False)
sketch12.addGeometry(Part.LineSegment(V(-5, -65, 0), V(-5, -5, 0)), False)
sketch12.addGeometry(Part.LineSegment(V(-5, -5, 0), V(65, -5, 0)), False)
sketch12.addGeometry(Part.LineSegment(V(65, -5, 0), V(65, -65, 0)), False)
sketch12.addConstraint(Sketcher.Constraint("Coincident", 0, 2, 1, 1))
sketch12.addConstraint(Sketcher.Constraint("Coincident", 1, 2, 2, 1))
sketch12.addConstraint(Sketcher.Constraint("Coincident", 2, 2, 3, 1))
sketch12.addConstraint(Sketcher.Constraint("Coincident", 3, 2, 0, 1))
sketch12.addConstraint(Sketcher.Constraint("Horizontal", 0))
sketch12.addConstraint(Sketcher.Constraint("Vertical", 1))
sketch12.addConstraint(Sketcher.Constraint("Horizontal", 2))
sketch12.addConstraint(Sketcher.Constraint("Vertical", 3))
sketch12.addConstraint(Sketcher.Constraint("DistanceX", 0, 2, 0, 1, 70.0))
sketch12.addConstraint(Sketcher.Constraint("DistanceY", 1, 1, 1, 2, 60.0))
sketch12.addConstraint(Sketcher.Constraint("DistanceX", 0, 2, -1, 1, 5.0))
sketch12.addConstraint(Sketcher.Constraint("DistanceY", 0, 2, -1, 1, 65.0))
sketch12.setExpression("Constraints[8]", "Params.sketch12_width")
sketch12.setExpression("Constraints[9]", "Params.sketch12_height")
pocket5 = body.newObject("PartDesign::Pocket", "Pocket004")
pocket5.Profile = sketch12
pocket5.setExpression("Length", "Params.pocket5_length")
pocket5.Reversed = True

# Sketch on YZ plane
sketch13 = body.newObject("Sketcher::SketchObject", "Sketch012")
sketch13.AttachmentSupport = (doc.getObject("YZ_Plane"), [""])
sketch13.MapMode = "FlatFace"
sketch13.AttachmentOffset = App.Placement(V(0, 0, -2), App.Rotation())
sketch13.addGeometry(Part.Circle(V(62.5, -7.5, 0), V(0, 0, 1), 1.75), False)
sketch13.addGeometry(Part.Circle(V(-2.5, -7.5, 0), V(0, 0, 1), 1.75), False)
sketch13.addGeometry(Part.Circle(V(-2.5, -62.5, 0), V(0, 0, 1), 1.75), False)
sketch13.addGeometry(Part.Circle(V(62.5, -62.5, 0), V(0, 0, 1), 1.75), False)
sketch13.addConstraint(Sketcher.Constraint("Equal", 0, 1))
sketch13.addConstraint(Sketcher.Constraint("Equal", 1, 2))
sketch13.addConstraint(Sketcher.Constraint("Equal", 2, 3))
sketch13.addConstraint(Sketcher.Constraint("Horizontal", 0, 3, 1, 3))
sketch13.addConstraint(Sketcher.Constraint("Horizontal", 2, 3, 3, 3))
sketch13.addConstraint(Sketcher.Constraint("Vertical", 1, 3, 2, 3))
sketch13.addConstraint(Sketcher.Constraint("Vertical", 0, 3, 3, 3))
sketch13.addConstraint(Sketcher.Constraint("Diameter", 0, 3.5))
sketch13.addConstraint(Sketcher.Constraint("DistanceX", 1, 3, 0, 3, 65.0))
sketch13.addConstraint(Sketcher.Constraint("DistanceY", 2, 3, 1, 3, 55.0))
sketch13.addConstraint(Sketcher.Constraint("DistanceX", -1, 1, 0, 3, 62.5))
sketch13.addConstraint(Sketcher.Constraint("DistanceY", 0, 3, -1, 1, 7.5))
sketch13.setExpression("Constraints[7]", "Params.sketch13_diameter")
pocket6 = body.newObject("PartDesign::Pocket", "Pocket005")
pocket6.Profile = sketch13
pocket6.setExpression("Length", "Params.pocket6_length")
pocket6.Reversed = True

# Sketch on XZ plane
sketch14 = body.newObject("Sketcher::SketchObject", "Sketch013")
sketch14.AttachmentSupport = (doc.getObject("XZ_Plane"), [""])
sketch14.MapMode = "FlatFace"
sketch14.AttachmentOffset = App.Placement(V(0, 0, 5), App.Rotation())
sketch14.addGeometry(Part.Circle(V(14.5, -45.923378, 0), V(0, 0, 1), 5), False)
sketch14.addConstraint(Sketcher.Constraint("Diameter", 0, 10.0))
sketch14.addConstraint(Sketcher.Constraint("DistanceX", -1, 1, 0, 3, 14.5))
sketch14.addConstraint(Sketcher.Constraint("DistanceY", 0, 3, -1, 1, 45.923378))
sketch14.setExpression("Constraints[0]", "Params.sketch14_diameter")
pocket7 = body.newObject("PartDesign::Pocket", "Pocket006")
pocket7.Profile = sketch14
pocket7.setExpression("Length", "Params.pocket7_length")

doc.recompute()
